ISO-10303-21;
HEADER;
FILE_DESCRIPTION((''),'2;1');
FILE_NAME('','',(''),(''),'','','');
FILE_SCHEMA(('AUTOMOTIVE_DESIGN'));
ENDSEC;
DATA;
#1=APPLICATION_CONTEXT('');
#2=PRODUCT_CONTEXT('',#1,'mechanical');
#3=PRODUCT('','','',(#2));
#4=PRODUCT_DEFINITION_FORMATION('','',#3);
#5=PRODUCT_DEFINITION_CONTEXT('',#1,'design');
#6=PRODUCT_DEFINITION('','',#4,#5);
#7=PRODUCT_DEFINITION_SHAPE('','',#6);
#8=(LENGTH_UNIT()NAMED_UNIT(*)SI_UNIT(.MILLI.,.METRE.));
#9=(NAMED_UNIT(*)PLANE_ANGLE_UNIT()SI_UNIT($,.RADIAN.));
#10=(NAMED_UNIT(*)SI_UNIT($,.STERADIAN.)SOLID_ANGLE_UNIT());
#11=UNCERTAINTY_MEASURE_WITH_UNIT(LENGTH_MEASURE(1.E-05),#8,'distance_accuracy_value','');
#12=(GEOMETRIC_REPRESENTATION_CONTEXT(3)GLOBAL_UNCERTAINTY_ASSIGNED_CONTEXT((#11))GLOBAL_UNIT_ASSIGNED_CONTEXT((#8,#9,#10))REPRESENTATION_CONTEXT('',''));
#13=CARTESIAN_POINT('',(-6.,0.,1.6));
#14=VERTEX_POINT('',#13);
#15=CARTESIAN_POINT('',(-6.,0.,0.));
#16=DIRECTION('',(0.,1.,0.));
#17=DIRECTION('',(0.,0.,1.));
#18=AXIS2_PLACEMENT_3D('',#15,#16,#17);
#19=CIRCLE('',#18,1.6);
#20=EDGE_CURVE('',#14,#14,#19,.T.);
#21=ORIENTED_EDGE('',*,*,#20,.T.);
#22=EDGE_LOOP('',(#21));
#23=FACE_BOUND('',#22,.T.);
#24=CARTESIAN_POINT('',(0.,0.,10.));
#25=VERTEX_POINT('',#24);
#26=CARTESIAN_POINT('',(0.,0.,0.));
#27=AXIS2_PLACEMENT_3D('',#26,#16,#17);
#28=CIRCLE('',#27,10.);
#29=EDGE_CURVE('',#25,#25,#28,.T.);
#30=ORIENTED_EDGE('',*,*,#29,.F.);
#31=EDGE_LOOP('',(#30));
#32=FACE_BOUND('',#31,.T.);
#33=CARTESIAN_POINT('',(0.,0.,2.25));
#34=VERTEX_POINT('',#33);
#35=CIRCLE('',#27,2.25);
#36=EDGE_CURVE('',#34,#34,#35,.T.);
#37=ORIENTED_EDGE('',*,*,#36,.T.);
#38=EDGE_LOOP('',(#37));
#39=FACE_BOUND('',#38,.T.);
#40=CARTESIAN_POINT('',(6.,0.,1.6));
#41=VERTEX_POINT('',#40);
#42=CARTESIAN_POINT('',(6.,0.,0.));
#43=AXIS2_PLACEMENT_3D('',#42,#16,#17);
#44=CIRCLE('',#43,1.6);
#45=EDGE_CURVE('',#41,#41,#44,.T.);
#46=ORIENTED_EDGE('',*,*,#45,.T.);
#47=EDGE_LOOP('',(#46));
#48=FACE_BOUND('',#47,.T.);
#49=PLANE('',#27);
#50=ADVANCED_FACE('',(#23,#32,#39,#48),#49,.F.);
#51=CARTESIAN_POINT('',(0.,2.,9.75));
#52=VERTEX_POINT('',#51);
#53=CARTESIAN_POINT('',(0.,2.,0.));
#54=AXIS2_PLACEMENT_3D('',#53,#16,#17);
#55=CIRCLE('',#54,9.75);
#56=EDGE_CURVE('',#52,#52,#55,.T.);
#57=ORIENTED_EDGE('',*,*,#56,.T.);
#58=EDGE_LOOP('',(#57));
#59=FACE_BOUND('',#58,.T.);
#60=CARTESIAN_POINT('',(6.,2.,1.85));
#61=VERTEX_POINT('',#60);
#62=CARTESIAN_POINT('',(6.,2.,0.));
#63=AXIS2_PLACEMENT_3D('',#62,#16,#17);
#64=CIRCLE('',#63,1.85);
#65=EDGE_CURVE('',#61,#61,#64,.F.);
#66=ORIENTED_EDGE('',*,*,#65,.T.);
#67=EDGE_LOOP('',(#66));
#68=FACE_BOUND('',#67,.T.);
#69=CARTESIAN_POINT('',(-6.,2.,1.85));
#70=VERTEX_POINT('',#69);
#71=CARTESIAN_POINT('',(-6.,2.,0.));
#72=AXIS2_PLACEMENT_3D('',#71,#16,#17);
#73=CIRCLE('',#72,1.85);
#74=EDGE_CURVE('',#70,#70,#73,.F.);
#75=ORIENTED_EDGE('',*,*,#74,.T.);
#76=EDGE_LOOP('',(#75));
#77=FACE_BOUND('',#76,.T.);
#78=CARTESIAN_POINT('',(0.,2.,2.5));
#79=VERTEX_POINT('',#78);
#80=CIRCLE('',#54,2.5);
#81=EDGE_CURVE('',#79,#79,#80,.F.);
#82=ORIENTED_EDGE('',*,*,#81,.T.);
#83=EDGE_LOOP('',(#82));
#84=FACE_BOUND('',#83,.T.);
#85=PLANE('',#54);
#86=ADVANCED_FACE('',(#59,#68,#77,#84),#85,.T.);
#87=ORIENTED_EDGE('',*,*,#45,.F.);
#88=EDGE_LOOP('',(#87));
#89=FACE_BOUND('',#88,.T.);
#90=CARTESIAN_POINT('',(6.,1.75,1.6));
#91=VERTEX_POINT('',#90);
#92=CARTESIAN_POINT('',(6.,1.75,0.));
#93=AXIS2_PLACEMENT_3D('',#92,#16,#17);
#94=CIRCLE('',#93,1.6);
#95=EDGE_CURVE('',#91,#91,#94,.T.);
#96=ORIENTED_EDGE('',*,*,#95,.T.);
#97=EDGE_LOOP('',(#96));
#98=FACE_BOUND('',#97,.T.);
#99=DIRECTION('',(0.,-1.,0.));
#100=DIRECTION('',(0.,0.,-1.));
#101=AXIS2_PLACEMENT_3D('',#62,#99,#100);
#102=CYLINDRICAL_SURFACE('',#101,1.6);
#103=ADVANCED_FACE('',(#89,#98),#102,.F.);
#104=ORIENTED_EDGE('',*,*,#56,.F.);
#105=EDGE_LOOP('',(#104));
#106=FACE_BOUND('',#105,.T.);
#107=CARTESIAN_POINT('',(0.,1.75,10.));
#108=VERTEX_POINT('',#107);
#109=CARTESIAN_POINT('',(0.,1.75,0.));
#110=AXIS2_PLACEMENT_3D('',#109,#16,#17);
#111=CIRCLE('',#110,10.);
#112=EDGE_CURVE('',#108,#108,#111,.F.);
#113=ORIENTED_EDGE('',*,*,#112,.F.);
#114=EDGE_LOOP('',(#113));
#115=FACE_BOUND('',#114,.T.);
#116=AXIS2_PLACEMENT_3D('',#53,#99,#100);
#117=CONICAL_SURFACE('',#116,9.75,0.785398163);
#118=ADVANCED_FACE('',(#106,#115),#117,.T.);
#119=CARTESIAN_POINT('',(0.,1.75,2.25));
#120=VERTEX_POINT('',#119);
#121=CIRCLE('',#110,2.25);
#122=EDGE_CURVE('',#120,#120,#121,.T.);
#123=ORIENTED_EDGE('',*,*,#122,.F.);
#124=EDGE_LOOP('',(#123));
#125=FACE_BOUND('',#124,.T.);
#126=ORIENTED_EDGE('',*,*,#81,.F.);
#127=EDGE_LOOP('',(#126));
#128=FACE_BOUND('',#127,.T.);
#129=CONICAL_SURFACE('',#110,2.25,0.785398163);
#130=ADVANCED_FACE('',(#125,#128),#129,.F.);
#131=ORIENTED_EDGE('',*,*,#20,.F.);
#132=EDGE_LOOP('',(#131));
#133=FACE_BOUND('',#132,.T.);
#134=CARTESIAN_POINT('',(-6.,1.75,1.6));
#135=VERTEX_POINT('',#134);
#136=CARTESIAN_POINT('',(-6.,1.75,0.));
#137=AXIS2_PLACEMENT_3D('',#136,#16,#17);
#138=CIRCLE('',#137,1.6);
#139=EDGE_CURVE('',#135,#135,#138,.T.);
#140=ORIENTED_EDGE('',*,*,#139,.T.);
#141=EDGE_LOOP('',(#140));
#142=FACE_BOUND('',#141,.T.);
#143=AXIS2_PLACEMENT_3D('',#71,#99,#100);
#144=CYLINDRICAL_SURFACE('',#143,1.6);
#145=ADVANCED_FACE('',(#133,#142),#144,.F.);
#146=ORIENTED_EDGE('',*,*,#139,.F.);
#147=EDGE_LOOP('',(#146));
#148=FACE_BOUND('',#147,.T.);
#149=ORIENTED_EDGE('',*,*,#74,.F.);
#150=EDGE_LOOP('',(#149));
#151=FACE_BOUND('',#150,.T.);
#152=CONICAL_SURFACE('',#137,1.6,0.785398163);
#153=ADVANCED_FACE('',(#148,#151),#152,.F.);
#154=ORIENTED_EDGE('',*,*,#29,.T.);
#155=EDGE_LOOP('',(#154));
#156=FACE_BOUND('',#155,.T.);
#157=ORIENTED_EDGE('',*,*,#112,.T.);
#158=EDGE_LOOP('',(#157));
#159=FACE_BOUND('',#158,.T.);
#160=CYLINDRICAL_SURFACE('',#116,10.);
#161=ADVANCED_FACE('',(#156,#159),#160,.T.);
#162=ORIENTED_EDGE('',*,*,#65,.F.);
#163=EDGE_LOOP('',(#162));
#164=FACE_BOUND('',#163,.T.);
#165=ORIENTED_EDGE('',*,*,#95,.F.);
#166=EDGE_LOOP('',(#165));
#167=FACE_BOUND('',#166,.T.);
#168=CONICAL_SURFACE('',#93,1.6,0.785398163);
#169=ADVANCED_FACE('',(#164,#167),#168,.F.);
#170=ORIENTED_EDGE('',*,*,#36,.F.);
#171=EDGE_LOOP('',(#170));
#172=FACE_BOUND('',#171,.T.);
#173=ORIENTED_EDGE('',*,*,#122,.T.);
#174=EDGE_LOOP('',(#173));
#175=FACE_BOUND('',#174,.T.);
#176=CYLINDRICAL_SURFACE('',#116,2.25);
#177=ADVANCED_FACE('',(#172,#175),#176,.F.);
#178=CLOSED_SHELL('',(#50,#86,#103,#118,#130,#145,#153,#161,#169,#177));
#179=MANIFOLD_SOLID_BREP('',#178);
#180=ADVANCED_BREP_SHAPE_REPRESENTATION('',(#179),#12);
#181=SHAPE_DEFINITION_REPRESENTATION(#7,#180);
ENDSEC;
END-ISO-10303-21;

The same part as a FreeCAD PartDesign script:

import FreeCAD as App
import Part
import Sketcher


def edges_at(feature, points):
    """Names of the edges that pass closest to the given points."""
    edges = feature.Shape.Edges
    near = lambda p: min(range(len(edges)), key=lambda i: edges[i].distToShape(Part.Vertex(*p))[0])
    return sorted({f"Edge{near(p) + 1}" for p in points})

doc = App.newDocument("Part")
params = doc.addObject("Spreadsheet::Sheet", "Params")
for row, (alias, value) in enumerate([
    ("sketch1_diameter", "20 mm"),
    ("sketch1_diameter2", "3.2 mm"),
    ("sketch1_diameter3", "4.5 mm"),
    ("pad1_length", "2 mm"),
    ("chamfer_size", "0.25 mm"),
], start=1):
    params.set(f"A{row}", alias)
    params.set(f"B{row}", "=" + value)
    params.setAlias(f"B{row}", alias)

body = doc.addObject("PartDesign::Body", "Body")

# Sketch on XZ plane
sketch1 = doc.addObject("Sketcher::SketchObject", "Sketch")
body.addObject(sketch1)
sketch1.AttachmentSupport = (doc.XZ_Plane, [""])
sketch1.MapMode = "FlatFace"
sketch1.addGeometry(Part.Circle(App.Vector(0, 0, 0), App.Vector(0, 0, 1), 10), False)
sketch1.addGeometry(Part.Circle(App.Vector(-6, 0, 0), App.Vector(0, 0, 1), 1.6), False)
sketch1.addGeometry(Part.Circle(App.Vector(6, 0, 0), App.Vector(0, 0, 1), 1.6), False)
sketch1.addGeometry(Part.Circle(App.Vector(0, 0, 0), App.Vector(0, 0, 1), 2.25), False)
sketch1.addConstraint(Sketcher.Constraint("Coincident", 0, 3, -1, 1))
sketch1.addConstraint(Sketcher.Constraint("Coincident", 3, 3, -1, 1))
sketch1.addConstraint(Sketcher.Constraint("Equal", 1, 2))
sketch1.addConstraint(Sketcher.Constraint("Symmetric", 1, 3, 2, 3, -1, 1))
sketch1.addConstraint(Sketcher.Constraint("PointOnObject", 1, 3, -1))
sketch1.addConstraint(Sketcher.Constraint("Diameter", 0, 20.0))
sketch1.addConstraint(Sketcher.Constraint("Diameter", 1, 3.2))
sketch1.addConstraint(Sketcher.Constraint("Diameter", 3, 4.5))
sketch1.addConstraint(Sketcher.Constraint("DistanceX", 1, 3, -1, 1, 6.0))
sketch1.setExpression("Constraints[5]", "Params.sketch1_diameter")
sketch1.setExpression("Constraints[6]", "Params.sketch1_diameter2")
sketch1.setExpression("Constraints[7]", "Params.sketch1_diameter3")
pad1 = doc.addObject("PartDesign::Pad", "Pad")
body.addObject(pad1)
pad1.Profile = sketch1
pad1.setExpression("Length", "Params.pad1_length")
pad1.Reversed = True
doc.recompute()

chamfer = doc.addObject("PartDesign::Chamfer", "Chamfer")
body.addObject(chamfer)
chamfer.Base = (pad1, edges_at(pad1, [
    (0, 2, -2.25),
    (0, 2, -10),
    (-6, 2, -1.6),
    (6, 2, -1.6),
]))
chamfer.setExpression("Size", "Params.chamfer_size")

doc.recompute()
